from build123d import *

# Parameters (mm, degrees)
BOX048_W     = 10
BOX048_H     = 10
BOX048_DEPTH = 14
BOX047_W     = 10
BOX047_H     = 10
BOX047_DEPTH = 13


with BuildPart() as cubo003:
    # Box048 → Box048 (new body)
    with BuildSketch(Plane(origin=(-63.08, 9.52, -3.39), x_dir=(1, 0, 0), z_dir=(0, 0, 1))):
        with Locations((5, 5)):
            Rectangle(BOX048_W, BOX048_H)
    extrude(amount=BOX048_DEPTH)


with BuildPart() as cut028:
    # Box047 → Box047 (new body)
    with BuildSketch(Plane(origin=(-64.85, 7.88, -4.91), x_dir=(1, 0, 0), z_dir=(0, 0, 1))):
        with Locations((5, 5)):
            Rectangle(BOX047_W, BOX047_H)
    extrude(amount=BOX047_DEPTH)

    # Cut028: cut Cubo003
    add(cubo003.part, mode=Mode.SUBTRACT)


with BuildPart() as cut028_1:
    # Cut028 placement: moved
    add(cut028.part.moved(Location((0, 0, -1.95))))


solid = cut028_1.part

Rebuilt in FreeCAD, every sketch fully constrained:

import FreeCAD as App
import Part
import Sketcher

V = App.Vector

doc = App.newDocument("Part")
params = doc.addObject("Spreadsheet::Sheet", "Params")
for row, (alias, value) in enumerate([
    ("sketch1_width", "10 mm"),
    ("pad1_length", "14 mm"),
    ("sketch2_width", "10 mm"),
    ("pad2_length", "13 mm"),
], start=1):
    params.set(f"A{row}", alias)
    params.set(f"B{row}", "=" + value)
    params.setAlias(f"B{row}", alias)

body = doc.addObject("PartDesign::Body", "Body")

# Sketch on XY plane
sketch1 = body.newObject("Sketcher::SketchObject", "Sketch")
sketch1.AttachmentSupport = (doc.getObject("XY_Plane"), [""])
sketch1.MapMode = "FlatFace"
sketch1.AttachmentOffset = App.Placement(V(0, 0, -3.39), App.Rotation())
sketch1.addGeometry(Part.LineSegment(V(-63, 20, 0), V(-63, 10, 0)), False)
sketch1.addGeometry(Part.LineSegment(V(-63, 10, 0), V(-53, 10, 0)), False)
sketch1.addGeometry(Part.LineSegment(V(-53, 10, 0), V(-53, 20, 0)), False)
sketch1.addGeometry(Part.LineSegment(V(-53, 20, 0), V(-63, 20, 0)), False)
sketch1.addConstraint(Sketcher.Constraint("Coincident", 0, 2, 1, 1))
sketch1.addConstraint(Sketcher.Constraint("Coincident", 1, 2, 2, 1))
sketch1.addConstraint(Sketcher.Constraint("Coincident", 2, 2, 3, 1))
sketch1.addConstraint(Sketcher.Constraint("Coincident", 3, 2, 0, 1))
sketch1.addConstraint(Sketcher.Constraint("Vertical", 0))
sketch1.addConstraint(Sketcher.Constraint("Horizontal", 1))
sketch1.addConstraint(Sketcher.Constraint("Vertical", 2))
sketch1.addConstraint(Sketcher.Constraint("Horizontal", 3))
sketch1.addConstraint(Sketcher.Constraint("Equal", 3, 0))
sketch1.addConstraint(Sketcher.Constraint("DistanceX", 1, 1, 1, 2, 10.0))
sketch1.addConstraint(Sketcher.Constraint("DistanceX", 0, 2, -1, 1, 63.08))
sketch1.addConstraint(Sketcher.Constraint("DistanceY", -1, 1, 0, 2, 9.52))
sketch1.setExpression("Constraints[9]", "Params.sketch1_width")
pad1 = body.newObject("PartDesign::Pad", "Pad")
pad1.Profile = sketch1
pad1.setExpression("Length", "Params.pad1_length")
body2 = doc.addObject("PartDesign::Body", "Body001")

# Sketch on XY plane
sketch2 = body2.newObject("Sketcher::SketchObject", "Sketch001")
sketch2.AttachmentSupport = (doc.getObject("XY_Plane001"), [""])
sketch2.MapMode = "FlatFace"
sketch2.AttachmentOffset = App.Placement(V(0, 0, -4.91), App.Rotation())
sketch2.addGeometry(Part.LineSegment(V(-65, 18, 0), V(-65, 8, 0)), False)
sketch2.addGeometry(Part.LineSegment(V(-65, 8, 0), V(-55, 8, 0)), False)
sketch2.addGeometry(Part.LineSegment(V(-55, 8, 0), V(-55, 18, 0)), False)
sketch2.addGeometry(Part.LineSegment(V(-55, 18, 0), V(-65, 18, 0)), False)
sketch2.addConstraint(Sketcher.Constraint("Coincident", 0, 2, 1, 1))
sketch2.addConstraint(Sketcher.Constraint("Coincident", 1, 2, 2, 1))
sketch2.addConstraint(Sketcher.Constraint("Coincident", 2, 2, 3, 1))
sketch2.addConstraint(Sketcher.Constraint("Coincident", 3, 2, 0, 1))
sketch2.addConstraint(Sketcher.Constraint("Vertical", 0))
sketch2.addConstraint(Sketcher.Constraint("Horizontal", 1))
sketch2.addConstraint(Sketcher.Constraint("Vertical", 2))
sketch2.addConstraint(Sketcher.Constraint("Horizontal", 3))
sketch2.addConstraint(Sketcher.Constraint("Equal", 3, 0))
sketch2.addConstraint(Sketcher.Constraint("DistanceX", 1, 1, 1, 2, 10.0))
sketch2.addConstraint(Sketcher.Constraint("DistanceX", 0, 2, -1, 1, 64.85))
sketch2.addConstraint(Sketcher.Constraint("DistanceY", -1, 1, 0, 2, 7.88))
sketch2.setExpression("Constraints[9]", "Params.sketch2_width")
pad2 = body2.newObject("PartDesign::Pad", "Pad001")
pad2.Profile = sketch2
pad2.setExpression("Length", "Params.pad2_length")
doc.recompute()

boolean = body2.newObject("PartDesign::Boolean", "Boolean")
boolean.Type = "Cut"
boolean.addObjects([body])
body3 = doc.addObject("PartDesign::Body", "Body002")
doc.recompute()

body2.Placement = App.Placement(V(0, 0, -1.95), App.Rotation(V(0, 0, 1), 0))
boolean2 = body3.newObject("PartDesign::Boolean", "Boolean001")
boolean2.Type = "Fuse"
boolean2.addObjects([body2])

doc.recompute()
